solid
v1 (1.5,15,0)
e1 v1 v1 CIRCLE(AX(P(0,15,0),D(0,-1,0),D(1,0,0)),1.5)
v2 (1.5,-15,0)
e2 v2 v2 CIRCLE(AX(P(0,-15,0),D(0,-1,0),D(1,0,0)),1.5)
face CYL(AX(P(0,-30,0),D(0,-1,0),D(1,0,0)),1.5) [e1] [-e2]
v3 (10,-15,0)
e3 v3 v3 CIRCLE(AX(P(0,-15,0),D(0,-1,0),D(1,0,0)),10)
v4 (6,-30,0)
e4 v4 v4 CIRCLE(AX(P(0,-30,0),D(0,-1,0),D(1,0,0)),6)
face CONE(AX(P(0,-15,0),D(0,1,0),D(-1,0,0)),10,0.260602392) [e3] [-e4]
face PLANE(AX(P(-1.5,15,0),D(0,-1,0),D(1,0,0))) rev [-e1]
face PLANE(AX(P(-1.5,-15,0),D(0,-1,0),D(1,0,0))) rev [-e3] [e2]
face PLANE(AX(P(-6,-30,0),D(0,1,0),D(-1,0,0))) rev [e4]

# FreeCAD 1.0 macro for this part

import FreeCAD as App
import Part
import Sketcher
from FreeCAD import Vector
Q = App.Units.Quantity


def add_polygon(sketch, points):
    """Adds a closed chain of lines whose ends are joined by coincident constraints."""
    first, n = sketch.GeometryCount, len(points)
    for a, b in zip(points, points[1:] + points[:1]):
        sketch.addGeometry(Part.LineSegment(App.Vector(*a, 0), App.Vector(*b, 0)), False)
    for i in range(n):
        sketch.addConstraint(Sketcher.Constraint("Coincident", first + i, 2, first + (i + 1) % n, 1))

doc = App.newDocument("Part")
body = doc.addObject("PartDesign::Body", "Body")

# Sketch on XY plane
sketch1 = body.newObject("Sketcher::SketchObject", "Sketch")
sketch1.AttachmentSupport = (doc.getObject("XY_Plane"), [""])
sketch1.MapMode = "FlatFace"
add_polygon(sketch1, [(-1.5, -15), (-10, -15), (-6, -30), (0, -30), (0, 15), (-1.5, 15)])  # lines 0-5
sketch1.addConstraint([
    Sketcher.Constraint("Horizontal", 0),
    Sketcher.Constraint("Horizontal", 2),
    Sketcher.Constraint("Vertical", 3),
    Sketcher.Constraint("Horizontal", 4),
    Sketcher.Constraint("Vertical", 5),
    Sketcher.Constraint("PointOnObject", 2, 2, -2),
    Sketcher.Constraint("DistanceX", 2, 1, 2, 2, Q("6 mm")),
    Sketcher.Constraint("DistanceY", 3, 1, 3, 2, Q("45 mm")),
    Sketcher.Constraint("DistanceY", 5, 2, 5, 1, Q("30 mm")),
    Sketcher.Constraint("DistanceX", 0, 2, 0, 1, Q("8.5 mm")),
    Sketcher.Constraint("DistanceX", 4, 2, 4, 1, Q("1.5 mm")),
    Sketcher.Constraint("DistanceY", 0, 2, -1, 1, Q("15 mm")),
])
revolution = body.newObject("PartDesign::Revolution", "Revolution")
revolution.Profile = sketch1
revolution.ReferenceAxis = (sketch1, ["V_Axis"])
revolution.Angle = 360

doc.recompute()
